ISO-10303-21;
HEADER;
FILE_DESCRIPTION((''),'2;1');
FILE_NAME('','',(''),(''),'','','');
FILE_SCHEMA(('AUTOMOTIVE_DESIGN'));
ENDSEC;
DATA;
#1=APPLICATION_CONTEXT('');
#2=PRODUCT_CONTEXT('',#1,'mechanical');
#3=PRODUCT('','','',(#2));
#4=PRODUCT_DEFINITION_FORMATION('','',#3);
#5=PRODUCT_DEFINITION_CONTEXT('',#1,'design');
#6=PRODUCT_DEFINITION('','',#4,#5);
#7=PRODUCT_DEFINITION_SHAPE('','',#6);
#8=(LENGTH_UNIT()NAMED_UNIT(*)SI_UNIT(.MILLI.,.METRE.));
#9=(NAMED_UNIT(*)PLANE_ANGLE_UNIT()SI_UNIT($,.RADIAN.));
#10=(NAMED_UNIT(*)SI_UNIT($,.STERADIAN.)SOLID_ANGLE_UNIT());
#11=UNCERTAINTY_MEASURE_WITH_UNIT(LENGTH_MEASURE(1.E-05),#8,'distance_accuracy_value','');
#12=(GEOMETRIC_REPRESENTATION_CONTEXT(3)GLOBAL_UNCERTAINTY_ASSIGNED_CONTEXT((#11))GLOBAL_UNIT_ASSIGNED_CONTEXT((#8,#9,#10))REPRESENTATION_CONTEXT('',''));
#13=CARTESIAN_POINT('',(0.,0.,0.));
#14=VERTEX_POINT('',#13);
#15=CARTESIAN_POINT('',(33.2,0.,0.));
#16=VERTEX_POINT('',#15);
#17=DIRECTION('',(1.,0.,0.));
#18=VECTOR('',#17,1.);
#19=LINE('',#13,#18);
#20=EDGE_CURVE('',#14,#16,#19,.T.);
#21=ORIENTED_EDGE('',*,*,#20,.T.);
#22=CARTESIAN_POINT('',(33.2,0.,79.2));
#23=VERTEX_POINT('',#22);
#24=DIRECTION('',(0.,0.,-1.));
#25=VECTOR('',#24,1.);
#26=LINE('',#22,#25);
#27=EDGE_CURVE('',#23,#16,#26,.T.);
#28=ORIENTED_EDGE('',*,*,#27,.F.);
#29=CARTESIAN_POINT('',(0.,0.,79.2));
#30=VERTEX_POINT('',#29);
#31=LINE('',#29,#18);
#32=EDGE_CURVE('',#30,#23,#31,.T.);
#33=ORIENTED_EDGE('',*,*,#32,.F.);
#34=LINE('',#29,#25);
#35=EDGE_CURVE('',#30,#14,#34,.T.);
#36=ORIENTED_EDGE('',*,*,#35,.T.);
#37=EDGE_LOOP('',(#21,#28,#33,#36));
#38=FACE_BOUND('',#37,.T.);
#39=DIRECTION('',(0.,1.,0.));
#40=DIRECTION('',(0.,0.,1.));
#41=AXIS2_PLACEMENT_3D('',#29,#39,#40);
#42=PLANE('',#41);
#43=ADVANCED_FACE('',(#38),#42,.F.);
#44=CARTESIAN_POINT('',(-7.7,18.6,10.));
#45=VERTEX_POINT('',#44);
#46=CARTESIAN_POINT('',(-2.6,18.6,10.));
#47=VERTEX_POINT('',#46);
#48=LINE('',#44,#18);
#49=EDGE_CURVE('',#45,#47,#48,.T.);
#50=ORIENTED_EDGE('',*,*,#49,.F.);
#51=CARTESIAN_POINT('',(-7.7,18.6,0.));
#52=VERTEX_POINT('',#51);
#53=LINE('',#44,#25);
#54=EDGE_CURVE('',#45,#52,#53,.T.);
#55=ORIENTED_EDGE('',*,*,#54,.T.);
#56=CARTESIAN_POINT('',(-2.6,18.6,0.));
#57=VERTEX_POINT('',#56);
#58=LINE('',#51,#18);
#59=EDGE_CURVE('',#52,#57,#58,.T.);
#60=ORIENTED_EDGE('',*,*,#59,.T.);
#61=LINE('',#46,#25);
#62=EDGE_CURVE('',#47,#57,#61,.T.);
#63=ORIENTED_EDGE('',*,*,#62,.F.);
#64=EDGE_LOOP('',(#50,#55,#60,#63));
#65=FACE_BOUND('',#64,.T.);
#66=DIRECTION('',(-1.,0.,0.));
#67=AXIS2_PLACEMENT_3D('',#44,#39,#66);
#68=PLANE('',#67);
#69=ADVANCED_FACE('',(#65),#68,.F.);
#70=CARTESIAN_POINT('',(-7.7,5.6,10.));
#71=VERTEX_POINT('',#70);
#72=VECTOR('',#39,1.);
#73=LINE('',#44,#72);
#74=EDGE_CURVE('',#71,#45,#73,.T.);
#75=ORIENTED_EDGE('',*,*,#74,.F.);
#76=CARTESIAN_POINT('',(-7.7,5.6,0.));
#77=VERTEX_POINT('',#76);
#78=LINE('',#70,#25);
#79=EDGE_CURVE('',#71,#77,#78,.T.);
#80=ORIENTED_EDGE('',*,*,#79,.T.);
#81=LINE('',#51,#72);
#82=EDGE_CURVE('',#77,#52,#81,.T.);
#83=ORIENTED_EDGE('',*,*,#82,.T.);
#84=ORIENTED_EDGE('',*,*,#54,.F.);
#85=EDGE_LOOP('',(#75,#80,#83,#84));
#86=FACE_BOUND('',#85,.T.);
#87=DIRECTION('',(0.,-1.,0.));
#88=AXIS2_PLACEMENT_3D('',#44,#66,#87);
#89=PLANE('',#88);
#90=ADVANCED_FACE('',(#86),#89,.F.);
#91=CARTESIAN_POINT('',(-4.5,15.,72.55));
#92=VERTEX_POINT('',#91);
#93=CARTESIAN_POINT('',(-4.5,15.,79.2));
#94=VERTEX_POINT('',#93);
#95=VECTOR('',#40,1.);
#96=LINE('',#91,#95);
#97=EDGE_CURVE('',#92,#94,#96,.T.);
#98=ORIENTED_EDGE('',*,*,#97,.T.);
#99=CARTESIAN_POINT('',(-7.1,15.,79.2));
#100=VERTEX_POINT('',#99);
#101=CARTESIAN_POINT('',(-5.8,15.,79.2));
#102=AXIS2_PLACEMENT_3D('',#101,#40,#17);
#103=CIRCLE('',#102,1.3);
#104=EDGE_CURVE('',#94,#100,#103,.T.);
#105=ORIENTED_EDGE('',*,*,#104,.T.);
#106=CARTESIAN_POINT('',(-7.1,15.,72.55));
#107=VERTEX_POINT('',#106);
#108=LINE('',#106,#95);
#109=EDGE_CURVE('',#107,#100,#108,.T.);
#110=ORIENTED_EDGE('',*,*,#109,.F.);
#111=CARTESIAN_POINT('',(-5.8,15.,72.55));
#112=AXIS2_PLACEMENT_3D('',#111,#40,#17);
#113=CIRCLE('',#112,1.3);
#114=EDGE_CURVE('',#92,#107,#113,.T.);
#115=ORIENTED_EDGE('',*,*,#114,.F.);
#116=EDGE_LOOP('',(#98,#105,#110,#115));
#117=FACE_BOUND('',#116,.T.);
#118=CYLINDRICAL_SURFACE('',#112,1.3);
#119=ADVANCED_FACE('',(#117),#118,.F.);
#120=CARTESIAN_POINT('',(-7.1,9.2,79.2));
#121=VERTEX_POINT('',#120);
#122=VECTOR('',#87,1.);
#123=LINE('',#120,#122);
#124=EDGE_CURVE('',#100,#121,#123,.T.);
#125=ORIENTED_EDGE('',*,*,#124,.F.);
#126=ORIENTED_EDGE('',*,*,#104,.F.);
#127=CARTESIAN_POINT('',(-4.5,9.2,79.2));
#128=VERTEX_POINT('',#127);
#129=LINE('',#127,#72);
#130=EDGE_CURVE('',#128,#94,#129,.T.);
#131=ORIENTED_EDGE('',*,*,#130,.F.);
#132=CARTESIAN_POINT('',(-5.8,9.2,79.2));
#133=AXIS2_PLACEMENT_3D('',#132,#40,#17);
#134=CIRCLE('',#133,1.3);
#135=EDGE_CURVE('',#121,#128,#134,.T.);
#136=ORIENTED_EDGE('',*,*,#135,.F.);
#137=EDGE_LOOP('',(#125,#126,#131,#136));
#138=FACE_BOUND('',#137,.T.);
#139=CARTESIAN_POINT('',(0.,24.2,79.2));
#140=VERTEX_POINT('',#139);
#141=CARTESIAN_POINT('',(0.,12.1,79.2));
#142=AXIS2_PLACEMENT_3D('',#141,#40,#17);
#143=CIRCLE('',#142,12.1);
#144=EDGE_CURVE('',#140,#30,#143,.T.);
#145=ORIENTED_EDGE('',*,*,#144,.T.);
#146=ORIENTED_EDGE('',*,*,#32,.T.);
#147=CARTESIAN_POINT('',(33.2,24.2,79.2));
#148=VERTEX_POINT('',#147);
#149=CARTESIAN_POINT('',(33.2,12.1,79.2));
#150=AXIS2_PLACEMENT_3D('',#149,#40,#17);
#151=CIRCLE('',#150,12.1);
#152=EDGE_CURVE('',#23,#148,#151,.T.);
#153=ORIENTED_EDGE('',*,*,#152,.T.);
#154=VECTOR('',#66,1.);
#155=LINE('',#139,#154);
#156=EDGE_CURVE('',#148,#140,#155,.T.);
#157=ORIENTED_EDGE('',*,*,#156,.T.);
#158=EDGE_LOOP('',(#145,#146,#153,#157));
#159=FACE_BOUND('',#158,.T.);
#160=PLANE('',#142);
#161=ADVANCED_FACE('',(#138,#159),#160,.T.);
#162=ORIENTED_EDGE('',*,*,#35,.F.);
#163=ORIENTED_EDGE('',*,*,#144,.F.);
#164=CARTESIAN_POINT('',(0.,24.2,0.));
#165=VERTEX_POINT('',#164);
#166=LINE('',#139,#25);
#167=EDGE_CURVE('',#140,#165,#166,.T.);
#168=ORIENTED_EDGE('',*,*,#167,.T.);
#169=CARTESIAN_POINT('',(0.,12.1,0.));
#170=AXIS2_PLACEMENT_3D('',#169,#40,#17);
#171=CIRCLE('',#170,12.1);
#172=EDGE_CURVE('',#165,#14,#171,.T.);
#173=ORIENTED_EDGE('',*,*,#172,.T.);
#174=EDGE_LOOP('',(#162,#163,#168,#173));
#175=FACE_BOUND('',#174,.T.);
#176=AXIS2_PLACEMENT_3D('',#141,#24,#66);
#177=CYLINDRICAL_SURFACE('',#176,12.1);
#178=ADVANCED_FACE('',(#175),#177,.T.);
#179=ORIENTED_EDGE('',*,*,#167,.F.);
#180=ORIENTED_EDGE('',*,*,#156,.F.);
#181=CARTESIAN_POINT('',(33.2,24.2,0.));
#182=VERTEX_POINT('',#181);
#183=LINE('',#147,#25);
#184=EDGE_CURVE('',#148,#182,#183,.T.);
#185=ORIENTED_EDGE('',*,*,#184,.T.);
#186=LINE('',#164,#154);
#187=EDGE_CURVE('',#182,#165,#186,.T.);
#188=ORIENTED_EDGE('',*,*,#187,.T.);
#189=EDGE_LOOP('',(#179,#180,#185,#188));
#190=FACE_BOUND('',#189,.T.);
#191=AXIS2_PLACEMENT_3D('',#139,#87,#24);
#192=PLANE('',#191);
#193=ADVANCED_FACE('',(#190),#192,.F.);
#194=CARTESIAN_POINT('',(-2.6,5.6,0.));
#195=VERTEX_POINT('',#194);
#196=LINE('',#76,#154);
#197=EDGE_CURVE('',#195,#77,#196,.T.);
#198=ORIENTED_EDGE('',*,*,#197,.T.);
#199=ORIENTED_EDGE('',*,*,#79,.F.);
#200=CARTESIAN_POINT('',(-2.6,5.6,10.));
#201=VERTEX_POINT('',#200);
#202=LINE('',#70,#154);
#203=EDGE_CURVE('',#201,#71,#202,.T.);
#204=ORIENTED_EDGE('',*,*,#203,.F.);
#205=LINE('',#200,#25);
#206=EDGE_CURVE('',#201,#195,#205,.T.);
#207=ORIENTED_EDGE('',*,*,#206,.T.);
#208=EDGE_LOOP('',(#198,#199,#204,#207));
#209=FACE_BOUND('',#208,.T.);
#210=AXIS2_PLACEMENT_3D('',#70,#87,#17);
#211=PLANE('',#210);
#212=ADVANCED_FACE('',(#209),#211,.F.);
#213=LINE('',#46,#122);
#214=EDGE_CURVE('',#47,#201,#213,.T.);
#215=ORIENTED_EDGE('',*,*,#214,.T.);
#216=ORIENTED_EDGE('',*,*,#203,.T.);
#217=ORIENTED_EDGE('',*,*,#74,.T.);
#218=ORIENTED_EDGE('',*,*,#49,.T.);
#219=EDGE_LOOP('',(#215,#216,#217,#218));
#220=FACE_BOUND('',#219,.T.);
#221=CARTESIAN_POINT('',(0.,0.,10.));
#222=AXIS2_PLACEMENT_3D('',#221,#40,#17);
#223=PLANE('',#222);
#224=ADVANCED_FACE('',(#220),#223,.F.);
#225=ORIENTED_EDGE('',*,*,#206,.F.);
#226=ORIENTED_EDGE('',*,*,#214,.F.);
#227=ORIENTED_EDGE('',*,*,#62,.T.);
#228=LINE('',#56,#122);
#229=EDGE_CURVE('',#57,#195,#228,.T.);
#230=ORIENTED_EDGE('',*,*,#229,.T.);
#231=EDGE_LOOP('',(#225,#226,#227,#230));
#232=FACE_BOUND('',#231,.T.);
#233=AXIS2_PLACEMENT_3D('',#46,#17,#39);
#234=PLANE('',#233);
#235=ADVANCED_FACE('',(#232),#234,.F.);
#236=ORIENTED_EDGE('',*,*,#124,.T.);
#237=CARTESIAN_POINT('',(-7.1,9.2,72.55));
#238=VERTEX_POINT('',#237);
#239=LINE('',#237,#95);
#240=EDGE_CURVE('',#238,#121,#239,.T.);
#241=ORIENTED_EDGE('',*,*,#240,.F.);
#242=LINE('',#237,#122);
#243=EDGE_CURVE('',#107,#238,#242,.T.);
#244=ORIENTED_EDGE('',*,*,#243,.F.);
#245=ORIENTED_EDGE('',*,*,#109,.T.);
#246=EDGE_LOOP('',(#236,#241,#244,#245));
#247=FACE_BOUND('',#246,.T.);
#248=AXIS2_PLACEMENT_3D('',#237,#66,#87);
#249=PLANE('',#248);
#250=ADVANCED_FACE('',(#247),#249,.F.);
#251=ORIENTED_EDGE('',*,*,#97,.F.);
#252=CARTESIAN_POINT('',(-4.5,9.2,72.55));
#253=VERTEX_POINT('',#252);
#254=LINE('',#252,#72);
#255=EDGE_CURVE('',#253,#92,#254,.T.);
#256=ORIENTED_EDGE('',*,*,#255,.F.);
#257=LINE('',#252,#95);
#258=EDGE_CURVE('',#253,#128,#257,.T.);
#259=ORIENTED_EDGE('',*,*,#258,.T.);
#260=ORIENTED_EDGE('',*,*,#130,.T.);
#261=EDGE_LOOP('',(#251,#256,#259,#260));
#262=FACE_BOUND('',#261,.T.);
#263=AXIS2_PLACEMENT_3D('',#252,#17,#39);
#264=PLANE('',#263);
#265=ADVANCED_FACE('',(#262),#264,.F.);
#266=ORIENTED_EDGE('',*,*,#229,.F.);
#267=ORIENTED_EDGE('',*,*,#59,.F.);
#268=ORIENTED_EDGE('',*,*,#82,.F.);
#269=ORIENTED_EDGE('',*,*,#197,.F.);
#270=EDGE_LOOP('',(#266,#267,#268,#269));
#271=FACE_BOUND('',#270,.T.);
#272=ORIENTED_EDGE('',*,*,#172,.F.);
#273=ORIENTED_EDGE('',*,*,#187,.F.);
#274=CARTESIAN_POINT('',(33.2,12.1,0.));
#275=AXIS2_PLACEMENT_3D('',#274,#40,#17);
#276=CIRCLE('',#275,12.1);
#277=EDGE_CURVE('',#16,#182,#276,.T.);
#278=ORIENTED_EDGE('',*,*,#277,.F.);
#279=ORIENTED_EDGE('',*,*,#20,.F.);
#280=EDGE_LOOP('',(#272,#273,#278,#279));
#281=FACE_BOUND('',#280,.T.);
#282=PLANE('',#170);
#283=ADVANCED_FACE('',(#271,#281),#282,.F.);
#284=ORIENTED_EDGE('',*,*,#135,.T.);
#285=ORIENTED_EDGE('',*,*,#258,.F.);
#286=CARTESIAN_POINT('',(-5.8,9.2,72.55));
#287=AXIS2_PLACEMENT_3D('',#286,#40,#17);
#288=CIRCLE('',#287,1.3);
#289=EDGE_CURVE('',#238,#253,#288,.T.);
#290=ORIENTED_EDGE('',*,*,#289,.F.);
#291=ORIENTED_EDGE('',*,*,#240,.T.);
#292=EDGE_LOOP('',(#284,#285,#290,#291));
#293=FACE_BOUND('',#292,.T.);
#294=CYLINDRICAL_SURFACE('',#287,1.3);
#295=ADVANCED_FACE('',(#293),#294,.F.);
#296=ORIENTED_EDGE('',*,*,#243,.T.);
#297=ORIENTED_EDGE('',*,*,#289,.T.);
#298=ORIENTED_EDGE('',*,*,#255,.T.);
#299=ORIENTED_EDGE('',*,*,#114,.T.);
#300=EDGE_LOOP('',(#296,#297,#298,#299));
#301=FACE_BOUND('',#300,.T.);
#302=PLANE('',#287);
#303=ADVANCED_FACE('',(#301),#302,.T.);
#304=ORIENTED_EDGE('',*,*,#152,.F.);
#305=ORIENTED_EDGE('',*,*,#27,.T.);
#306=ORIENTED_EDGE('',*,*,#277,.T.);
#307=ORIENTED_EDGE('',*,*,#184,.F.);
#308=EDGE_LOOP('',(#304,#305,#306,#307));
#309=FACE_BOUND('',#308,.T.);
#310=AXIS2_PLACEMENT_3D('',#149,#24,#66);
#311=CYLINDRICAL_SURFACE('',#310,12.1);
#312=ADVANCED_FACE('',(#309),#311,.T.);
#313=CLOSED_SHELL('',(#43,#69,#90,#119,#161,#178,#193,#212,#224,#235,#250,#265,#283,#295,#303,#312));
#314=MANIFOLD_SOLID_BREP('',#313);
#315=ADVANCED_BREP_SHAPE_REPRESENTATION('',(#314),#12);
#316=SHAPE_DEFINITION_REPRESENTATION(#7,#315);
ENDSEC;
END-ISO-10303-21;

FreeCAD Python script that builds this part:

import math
import FreeCAD as App
import Part
import Sketcher
from FreeCAD import Vector


def add_polygon(sketch, points):
    """Adds a closed chain of lines whose ends are joined by coincident constraints."""
    first, n = sketch.GeometryCount, len(points)
    for a, b in zip(points, points[1:] + points[:1]):
        sketch.addGeometry(Part.LineSegment(App.Vector(*a, 0), App.Vector(*b, 0)), False)
    for i in range(n):
        sketch.addConstraint(Sketcher.Constraint("Coincident", first + i, 2, first + (i + 1) % n, 1))

doc = App.newDocument("Part")
params = doc.addObject("Spreadsheet::Sheet", "Params")
for row, (alias, value) in enumerate([
    ("sketch1_radius", "12.1 mm"),
    ("sketch1_width", "33.2 mm"),
    ("pad1_length", "79.2 mm"),
    ("sketch2_height", "13 mm"),
    ("sketch2_width", "5.1 mm"),
    ("pocket1_length", "10 mm"),
    ("sketch3_radius", "1.3 mm"),
    ("sketch3_height", "5.8 mm"),
    ("pocket2_length", "6.65 mm"),
], start=1):
    params.set(f"A{row}", alias)
    params.set(f"B{row}", "=" + value)
    params.setAlias(f"B{row}", alias)

body = doc.addObject("PartDesign::Body", "Body")

sketch1 = doc.addObject("Sketcher::SketchObject", "Sketch")
body.addObject(sketch1)
sketch1.AttachmentSupport = (doc.XY_Plane, [""])
sketch1.MapMode = "FlatFace"
sketch1.addGeometry([
    Part.LineSegment(Vector(33, 24, 0), Vector(0, 24, 0)),
    Part.ArcOfCircle(Part.Circle(Vector(0, 12, 0), Vector(0, 0, 1), 12), math.radians(90), math.radians(270)),
    Part.LineSegment(Vector(0, 0, 0), Vector(33, 0, 0)),
    Part.ArcOfCircle(Part.Circle(Vector(33, 12, 0), Vector(0, 0, 1), 12), math.radians(-90), math.radians(90)),
], False)
sketch1.addConstraint([
    Sketcher.Constraint("Tangent", 0, 2, 1, 1),
    Sketcher.Constraint("Tangent", 1, 2, 2, 1),
    Sketcher.Constraint("Tangent", 2, 2, 3, 1),
    Sketcher.Constraint("Tangent", 3, 2, 0, 1),
    Sketcher.Constraint("Horizontal", 0),
    Sketcher.Constraint("Horizontal", 2),
    Sketcher.Constraint("Coincident", 1, 2, -1, 1),
    Sketcher.Constraint("Radius", 1, 12.1),
    Sketcher.Constraint("DistanceX", 0, 2, 0, 1, 33.2),
])
sketch1.setExpression("Constraints[7]", "Params.sketch1_radius")
sketch1.setExpression("Constraints[8]", "Params.sketch1_width")
pad1 = doc.addObject("PartDesign::Pad", "Pad")
body.addObject(pad1)
pad1.Profile = sketch1
pad1.setExpression("Length", "Params.pad1_length")

sketch2 = doc.addObject("Sketcher::SketchObject", "Sketch001")
body.addObject(sketch2)
sketch2.AttachmentSupport = (doc.XY_Plane, [""])
sketch2.MapMode = "FlatFace"
add_polygon(sketch2, [(-3, 19), (-3, 6), (-8, 6), (-8, 19)])
sketch2.addConstraint([
    Sketcher.Constraint("Vertical", 0),
    Sketcher.Constraint("Horizontal", 1),
    Sketcher.Constraint("Vertical", 2),
    Sketcher.Constraint("Horizontal", 3),
    Sketcher.Constraint("DistanceY", 0, 2, 0, 1, 13.0),
    Sketcher.Constraint("DistanceX", 1, 2, 1, 1, 5.1),
    Sketcher.Constraint("DistanceX", 0, 2, -1, 1, 2.6),
    Sketcher.Constraint("DistanceY", -1, 1, 0, 2, 5.6),
])
sketch2.setExpression("Constraints[8]", "Params.sketch2_height")
sketch2.setExpression("Constraints[9]", "Params.sketch2_width")
pocket1 = doc.addObject("PartDesign::Pocket", "Pocket")
body.addObject(pocket1)
pocket1.Profile = sketch2
pocket1.setExpression("Length", "Params.pocket1_length")
pocket1.Reversed = True

sketch3 = doc.addObject("Sketcher::SketchObject", "Sketch002")
body.addObject(sketch3)
sketch3.AttachmentSupport = (doc.XY_Plane, [""])
sketch3.MapMode = "FlatFace"
sketch3.AttachmentOffset = App.Placement(Vector(0, 0, 79.2), App.Rotation())
sketch3.addGeometry([
    Part.LineSegment(Vector(-7.1, 15, 0), Vector(-7.1, 9.2, 0)),
    Part.ArcOfCircle(Part.Circle(Vector(-5.8, 9.2, 0), Vector(0, 0, 1), 1.3), math.radians(180), math.radians(360)),
    Part.LineSegment(Vector(-4.5, 9.2, 0), Vector(-4.5, 15, 0)),
    Part.ArcOfCircle(Part.Circle(Vector(-5.8, 15, 0), Vector(0, 0, 1), 1.3), math.radians(0), math.radians(180)),
], False)
sketch3.addConstraint([
    Sketcher.Constraint("Tangent", 0, 2, 1, 1),
    Sketcher.Constraint("Tangent", 1, 2, 2, 1),
    Sketcher.Constraint("Tangent", 2, 2, 3, 1),
    Sketcher.Constraint("Tangent", 3, 2, 0, 1),
    Sketcher.Constraint("Vertical", 0),
    Sketcher.Constraint("Vertical", 2),
    Sketcher.Constraint("Radius", 1, 1.3),
    Sketcher.Constraint("DistanceY", 0, 2, 0, 1, 5.8),
    Sketcher.Constraint("DistanceY", -1, 1, 3, 3, 15.0),
    Sketcher.Constraint("DistanceX", 1, 3, -1, 1, 5.8),
])
sketch3.setExpression("Constraints[6]", "Params.sketch3_radius")
sketch3.setExpression("Constraints[7]", "Params.sketch3_height")
pocket2 = doc.addObject("PartDesign::Pocket", "Pocket001")
body.addObject(pocket2)
pocket2.Profile = sketch3
pocket2.setExpression("Length", "Params.pocket2_length")

doc.recompute()
